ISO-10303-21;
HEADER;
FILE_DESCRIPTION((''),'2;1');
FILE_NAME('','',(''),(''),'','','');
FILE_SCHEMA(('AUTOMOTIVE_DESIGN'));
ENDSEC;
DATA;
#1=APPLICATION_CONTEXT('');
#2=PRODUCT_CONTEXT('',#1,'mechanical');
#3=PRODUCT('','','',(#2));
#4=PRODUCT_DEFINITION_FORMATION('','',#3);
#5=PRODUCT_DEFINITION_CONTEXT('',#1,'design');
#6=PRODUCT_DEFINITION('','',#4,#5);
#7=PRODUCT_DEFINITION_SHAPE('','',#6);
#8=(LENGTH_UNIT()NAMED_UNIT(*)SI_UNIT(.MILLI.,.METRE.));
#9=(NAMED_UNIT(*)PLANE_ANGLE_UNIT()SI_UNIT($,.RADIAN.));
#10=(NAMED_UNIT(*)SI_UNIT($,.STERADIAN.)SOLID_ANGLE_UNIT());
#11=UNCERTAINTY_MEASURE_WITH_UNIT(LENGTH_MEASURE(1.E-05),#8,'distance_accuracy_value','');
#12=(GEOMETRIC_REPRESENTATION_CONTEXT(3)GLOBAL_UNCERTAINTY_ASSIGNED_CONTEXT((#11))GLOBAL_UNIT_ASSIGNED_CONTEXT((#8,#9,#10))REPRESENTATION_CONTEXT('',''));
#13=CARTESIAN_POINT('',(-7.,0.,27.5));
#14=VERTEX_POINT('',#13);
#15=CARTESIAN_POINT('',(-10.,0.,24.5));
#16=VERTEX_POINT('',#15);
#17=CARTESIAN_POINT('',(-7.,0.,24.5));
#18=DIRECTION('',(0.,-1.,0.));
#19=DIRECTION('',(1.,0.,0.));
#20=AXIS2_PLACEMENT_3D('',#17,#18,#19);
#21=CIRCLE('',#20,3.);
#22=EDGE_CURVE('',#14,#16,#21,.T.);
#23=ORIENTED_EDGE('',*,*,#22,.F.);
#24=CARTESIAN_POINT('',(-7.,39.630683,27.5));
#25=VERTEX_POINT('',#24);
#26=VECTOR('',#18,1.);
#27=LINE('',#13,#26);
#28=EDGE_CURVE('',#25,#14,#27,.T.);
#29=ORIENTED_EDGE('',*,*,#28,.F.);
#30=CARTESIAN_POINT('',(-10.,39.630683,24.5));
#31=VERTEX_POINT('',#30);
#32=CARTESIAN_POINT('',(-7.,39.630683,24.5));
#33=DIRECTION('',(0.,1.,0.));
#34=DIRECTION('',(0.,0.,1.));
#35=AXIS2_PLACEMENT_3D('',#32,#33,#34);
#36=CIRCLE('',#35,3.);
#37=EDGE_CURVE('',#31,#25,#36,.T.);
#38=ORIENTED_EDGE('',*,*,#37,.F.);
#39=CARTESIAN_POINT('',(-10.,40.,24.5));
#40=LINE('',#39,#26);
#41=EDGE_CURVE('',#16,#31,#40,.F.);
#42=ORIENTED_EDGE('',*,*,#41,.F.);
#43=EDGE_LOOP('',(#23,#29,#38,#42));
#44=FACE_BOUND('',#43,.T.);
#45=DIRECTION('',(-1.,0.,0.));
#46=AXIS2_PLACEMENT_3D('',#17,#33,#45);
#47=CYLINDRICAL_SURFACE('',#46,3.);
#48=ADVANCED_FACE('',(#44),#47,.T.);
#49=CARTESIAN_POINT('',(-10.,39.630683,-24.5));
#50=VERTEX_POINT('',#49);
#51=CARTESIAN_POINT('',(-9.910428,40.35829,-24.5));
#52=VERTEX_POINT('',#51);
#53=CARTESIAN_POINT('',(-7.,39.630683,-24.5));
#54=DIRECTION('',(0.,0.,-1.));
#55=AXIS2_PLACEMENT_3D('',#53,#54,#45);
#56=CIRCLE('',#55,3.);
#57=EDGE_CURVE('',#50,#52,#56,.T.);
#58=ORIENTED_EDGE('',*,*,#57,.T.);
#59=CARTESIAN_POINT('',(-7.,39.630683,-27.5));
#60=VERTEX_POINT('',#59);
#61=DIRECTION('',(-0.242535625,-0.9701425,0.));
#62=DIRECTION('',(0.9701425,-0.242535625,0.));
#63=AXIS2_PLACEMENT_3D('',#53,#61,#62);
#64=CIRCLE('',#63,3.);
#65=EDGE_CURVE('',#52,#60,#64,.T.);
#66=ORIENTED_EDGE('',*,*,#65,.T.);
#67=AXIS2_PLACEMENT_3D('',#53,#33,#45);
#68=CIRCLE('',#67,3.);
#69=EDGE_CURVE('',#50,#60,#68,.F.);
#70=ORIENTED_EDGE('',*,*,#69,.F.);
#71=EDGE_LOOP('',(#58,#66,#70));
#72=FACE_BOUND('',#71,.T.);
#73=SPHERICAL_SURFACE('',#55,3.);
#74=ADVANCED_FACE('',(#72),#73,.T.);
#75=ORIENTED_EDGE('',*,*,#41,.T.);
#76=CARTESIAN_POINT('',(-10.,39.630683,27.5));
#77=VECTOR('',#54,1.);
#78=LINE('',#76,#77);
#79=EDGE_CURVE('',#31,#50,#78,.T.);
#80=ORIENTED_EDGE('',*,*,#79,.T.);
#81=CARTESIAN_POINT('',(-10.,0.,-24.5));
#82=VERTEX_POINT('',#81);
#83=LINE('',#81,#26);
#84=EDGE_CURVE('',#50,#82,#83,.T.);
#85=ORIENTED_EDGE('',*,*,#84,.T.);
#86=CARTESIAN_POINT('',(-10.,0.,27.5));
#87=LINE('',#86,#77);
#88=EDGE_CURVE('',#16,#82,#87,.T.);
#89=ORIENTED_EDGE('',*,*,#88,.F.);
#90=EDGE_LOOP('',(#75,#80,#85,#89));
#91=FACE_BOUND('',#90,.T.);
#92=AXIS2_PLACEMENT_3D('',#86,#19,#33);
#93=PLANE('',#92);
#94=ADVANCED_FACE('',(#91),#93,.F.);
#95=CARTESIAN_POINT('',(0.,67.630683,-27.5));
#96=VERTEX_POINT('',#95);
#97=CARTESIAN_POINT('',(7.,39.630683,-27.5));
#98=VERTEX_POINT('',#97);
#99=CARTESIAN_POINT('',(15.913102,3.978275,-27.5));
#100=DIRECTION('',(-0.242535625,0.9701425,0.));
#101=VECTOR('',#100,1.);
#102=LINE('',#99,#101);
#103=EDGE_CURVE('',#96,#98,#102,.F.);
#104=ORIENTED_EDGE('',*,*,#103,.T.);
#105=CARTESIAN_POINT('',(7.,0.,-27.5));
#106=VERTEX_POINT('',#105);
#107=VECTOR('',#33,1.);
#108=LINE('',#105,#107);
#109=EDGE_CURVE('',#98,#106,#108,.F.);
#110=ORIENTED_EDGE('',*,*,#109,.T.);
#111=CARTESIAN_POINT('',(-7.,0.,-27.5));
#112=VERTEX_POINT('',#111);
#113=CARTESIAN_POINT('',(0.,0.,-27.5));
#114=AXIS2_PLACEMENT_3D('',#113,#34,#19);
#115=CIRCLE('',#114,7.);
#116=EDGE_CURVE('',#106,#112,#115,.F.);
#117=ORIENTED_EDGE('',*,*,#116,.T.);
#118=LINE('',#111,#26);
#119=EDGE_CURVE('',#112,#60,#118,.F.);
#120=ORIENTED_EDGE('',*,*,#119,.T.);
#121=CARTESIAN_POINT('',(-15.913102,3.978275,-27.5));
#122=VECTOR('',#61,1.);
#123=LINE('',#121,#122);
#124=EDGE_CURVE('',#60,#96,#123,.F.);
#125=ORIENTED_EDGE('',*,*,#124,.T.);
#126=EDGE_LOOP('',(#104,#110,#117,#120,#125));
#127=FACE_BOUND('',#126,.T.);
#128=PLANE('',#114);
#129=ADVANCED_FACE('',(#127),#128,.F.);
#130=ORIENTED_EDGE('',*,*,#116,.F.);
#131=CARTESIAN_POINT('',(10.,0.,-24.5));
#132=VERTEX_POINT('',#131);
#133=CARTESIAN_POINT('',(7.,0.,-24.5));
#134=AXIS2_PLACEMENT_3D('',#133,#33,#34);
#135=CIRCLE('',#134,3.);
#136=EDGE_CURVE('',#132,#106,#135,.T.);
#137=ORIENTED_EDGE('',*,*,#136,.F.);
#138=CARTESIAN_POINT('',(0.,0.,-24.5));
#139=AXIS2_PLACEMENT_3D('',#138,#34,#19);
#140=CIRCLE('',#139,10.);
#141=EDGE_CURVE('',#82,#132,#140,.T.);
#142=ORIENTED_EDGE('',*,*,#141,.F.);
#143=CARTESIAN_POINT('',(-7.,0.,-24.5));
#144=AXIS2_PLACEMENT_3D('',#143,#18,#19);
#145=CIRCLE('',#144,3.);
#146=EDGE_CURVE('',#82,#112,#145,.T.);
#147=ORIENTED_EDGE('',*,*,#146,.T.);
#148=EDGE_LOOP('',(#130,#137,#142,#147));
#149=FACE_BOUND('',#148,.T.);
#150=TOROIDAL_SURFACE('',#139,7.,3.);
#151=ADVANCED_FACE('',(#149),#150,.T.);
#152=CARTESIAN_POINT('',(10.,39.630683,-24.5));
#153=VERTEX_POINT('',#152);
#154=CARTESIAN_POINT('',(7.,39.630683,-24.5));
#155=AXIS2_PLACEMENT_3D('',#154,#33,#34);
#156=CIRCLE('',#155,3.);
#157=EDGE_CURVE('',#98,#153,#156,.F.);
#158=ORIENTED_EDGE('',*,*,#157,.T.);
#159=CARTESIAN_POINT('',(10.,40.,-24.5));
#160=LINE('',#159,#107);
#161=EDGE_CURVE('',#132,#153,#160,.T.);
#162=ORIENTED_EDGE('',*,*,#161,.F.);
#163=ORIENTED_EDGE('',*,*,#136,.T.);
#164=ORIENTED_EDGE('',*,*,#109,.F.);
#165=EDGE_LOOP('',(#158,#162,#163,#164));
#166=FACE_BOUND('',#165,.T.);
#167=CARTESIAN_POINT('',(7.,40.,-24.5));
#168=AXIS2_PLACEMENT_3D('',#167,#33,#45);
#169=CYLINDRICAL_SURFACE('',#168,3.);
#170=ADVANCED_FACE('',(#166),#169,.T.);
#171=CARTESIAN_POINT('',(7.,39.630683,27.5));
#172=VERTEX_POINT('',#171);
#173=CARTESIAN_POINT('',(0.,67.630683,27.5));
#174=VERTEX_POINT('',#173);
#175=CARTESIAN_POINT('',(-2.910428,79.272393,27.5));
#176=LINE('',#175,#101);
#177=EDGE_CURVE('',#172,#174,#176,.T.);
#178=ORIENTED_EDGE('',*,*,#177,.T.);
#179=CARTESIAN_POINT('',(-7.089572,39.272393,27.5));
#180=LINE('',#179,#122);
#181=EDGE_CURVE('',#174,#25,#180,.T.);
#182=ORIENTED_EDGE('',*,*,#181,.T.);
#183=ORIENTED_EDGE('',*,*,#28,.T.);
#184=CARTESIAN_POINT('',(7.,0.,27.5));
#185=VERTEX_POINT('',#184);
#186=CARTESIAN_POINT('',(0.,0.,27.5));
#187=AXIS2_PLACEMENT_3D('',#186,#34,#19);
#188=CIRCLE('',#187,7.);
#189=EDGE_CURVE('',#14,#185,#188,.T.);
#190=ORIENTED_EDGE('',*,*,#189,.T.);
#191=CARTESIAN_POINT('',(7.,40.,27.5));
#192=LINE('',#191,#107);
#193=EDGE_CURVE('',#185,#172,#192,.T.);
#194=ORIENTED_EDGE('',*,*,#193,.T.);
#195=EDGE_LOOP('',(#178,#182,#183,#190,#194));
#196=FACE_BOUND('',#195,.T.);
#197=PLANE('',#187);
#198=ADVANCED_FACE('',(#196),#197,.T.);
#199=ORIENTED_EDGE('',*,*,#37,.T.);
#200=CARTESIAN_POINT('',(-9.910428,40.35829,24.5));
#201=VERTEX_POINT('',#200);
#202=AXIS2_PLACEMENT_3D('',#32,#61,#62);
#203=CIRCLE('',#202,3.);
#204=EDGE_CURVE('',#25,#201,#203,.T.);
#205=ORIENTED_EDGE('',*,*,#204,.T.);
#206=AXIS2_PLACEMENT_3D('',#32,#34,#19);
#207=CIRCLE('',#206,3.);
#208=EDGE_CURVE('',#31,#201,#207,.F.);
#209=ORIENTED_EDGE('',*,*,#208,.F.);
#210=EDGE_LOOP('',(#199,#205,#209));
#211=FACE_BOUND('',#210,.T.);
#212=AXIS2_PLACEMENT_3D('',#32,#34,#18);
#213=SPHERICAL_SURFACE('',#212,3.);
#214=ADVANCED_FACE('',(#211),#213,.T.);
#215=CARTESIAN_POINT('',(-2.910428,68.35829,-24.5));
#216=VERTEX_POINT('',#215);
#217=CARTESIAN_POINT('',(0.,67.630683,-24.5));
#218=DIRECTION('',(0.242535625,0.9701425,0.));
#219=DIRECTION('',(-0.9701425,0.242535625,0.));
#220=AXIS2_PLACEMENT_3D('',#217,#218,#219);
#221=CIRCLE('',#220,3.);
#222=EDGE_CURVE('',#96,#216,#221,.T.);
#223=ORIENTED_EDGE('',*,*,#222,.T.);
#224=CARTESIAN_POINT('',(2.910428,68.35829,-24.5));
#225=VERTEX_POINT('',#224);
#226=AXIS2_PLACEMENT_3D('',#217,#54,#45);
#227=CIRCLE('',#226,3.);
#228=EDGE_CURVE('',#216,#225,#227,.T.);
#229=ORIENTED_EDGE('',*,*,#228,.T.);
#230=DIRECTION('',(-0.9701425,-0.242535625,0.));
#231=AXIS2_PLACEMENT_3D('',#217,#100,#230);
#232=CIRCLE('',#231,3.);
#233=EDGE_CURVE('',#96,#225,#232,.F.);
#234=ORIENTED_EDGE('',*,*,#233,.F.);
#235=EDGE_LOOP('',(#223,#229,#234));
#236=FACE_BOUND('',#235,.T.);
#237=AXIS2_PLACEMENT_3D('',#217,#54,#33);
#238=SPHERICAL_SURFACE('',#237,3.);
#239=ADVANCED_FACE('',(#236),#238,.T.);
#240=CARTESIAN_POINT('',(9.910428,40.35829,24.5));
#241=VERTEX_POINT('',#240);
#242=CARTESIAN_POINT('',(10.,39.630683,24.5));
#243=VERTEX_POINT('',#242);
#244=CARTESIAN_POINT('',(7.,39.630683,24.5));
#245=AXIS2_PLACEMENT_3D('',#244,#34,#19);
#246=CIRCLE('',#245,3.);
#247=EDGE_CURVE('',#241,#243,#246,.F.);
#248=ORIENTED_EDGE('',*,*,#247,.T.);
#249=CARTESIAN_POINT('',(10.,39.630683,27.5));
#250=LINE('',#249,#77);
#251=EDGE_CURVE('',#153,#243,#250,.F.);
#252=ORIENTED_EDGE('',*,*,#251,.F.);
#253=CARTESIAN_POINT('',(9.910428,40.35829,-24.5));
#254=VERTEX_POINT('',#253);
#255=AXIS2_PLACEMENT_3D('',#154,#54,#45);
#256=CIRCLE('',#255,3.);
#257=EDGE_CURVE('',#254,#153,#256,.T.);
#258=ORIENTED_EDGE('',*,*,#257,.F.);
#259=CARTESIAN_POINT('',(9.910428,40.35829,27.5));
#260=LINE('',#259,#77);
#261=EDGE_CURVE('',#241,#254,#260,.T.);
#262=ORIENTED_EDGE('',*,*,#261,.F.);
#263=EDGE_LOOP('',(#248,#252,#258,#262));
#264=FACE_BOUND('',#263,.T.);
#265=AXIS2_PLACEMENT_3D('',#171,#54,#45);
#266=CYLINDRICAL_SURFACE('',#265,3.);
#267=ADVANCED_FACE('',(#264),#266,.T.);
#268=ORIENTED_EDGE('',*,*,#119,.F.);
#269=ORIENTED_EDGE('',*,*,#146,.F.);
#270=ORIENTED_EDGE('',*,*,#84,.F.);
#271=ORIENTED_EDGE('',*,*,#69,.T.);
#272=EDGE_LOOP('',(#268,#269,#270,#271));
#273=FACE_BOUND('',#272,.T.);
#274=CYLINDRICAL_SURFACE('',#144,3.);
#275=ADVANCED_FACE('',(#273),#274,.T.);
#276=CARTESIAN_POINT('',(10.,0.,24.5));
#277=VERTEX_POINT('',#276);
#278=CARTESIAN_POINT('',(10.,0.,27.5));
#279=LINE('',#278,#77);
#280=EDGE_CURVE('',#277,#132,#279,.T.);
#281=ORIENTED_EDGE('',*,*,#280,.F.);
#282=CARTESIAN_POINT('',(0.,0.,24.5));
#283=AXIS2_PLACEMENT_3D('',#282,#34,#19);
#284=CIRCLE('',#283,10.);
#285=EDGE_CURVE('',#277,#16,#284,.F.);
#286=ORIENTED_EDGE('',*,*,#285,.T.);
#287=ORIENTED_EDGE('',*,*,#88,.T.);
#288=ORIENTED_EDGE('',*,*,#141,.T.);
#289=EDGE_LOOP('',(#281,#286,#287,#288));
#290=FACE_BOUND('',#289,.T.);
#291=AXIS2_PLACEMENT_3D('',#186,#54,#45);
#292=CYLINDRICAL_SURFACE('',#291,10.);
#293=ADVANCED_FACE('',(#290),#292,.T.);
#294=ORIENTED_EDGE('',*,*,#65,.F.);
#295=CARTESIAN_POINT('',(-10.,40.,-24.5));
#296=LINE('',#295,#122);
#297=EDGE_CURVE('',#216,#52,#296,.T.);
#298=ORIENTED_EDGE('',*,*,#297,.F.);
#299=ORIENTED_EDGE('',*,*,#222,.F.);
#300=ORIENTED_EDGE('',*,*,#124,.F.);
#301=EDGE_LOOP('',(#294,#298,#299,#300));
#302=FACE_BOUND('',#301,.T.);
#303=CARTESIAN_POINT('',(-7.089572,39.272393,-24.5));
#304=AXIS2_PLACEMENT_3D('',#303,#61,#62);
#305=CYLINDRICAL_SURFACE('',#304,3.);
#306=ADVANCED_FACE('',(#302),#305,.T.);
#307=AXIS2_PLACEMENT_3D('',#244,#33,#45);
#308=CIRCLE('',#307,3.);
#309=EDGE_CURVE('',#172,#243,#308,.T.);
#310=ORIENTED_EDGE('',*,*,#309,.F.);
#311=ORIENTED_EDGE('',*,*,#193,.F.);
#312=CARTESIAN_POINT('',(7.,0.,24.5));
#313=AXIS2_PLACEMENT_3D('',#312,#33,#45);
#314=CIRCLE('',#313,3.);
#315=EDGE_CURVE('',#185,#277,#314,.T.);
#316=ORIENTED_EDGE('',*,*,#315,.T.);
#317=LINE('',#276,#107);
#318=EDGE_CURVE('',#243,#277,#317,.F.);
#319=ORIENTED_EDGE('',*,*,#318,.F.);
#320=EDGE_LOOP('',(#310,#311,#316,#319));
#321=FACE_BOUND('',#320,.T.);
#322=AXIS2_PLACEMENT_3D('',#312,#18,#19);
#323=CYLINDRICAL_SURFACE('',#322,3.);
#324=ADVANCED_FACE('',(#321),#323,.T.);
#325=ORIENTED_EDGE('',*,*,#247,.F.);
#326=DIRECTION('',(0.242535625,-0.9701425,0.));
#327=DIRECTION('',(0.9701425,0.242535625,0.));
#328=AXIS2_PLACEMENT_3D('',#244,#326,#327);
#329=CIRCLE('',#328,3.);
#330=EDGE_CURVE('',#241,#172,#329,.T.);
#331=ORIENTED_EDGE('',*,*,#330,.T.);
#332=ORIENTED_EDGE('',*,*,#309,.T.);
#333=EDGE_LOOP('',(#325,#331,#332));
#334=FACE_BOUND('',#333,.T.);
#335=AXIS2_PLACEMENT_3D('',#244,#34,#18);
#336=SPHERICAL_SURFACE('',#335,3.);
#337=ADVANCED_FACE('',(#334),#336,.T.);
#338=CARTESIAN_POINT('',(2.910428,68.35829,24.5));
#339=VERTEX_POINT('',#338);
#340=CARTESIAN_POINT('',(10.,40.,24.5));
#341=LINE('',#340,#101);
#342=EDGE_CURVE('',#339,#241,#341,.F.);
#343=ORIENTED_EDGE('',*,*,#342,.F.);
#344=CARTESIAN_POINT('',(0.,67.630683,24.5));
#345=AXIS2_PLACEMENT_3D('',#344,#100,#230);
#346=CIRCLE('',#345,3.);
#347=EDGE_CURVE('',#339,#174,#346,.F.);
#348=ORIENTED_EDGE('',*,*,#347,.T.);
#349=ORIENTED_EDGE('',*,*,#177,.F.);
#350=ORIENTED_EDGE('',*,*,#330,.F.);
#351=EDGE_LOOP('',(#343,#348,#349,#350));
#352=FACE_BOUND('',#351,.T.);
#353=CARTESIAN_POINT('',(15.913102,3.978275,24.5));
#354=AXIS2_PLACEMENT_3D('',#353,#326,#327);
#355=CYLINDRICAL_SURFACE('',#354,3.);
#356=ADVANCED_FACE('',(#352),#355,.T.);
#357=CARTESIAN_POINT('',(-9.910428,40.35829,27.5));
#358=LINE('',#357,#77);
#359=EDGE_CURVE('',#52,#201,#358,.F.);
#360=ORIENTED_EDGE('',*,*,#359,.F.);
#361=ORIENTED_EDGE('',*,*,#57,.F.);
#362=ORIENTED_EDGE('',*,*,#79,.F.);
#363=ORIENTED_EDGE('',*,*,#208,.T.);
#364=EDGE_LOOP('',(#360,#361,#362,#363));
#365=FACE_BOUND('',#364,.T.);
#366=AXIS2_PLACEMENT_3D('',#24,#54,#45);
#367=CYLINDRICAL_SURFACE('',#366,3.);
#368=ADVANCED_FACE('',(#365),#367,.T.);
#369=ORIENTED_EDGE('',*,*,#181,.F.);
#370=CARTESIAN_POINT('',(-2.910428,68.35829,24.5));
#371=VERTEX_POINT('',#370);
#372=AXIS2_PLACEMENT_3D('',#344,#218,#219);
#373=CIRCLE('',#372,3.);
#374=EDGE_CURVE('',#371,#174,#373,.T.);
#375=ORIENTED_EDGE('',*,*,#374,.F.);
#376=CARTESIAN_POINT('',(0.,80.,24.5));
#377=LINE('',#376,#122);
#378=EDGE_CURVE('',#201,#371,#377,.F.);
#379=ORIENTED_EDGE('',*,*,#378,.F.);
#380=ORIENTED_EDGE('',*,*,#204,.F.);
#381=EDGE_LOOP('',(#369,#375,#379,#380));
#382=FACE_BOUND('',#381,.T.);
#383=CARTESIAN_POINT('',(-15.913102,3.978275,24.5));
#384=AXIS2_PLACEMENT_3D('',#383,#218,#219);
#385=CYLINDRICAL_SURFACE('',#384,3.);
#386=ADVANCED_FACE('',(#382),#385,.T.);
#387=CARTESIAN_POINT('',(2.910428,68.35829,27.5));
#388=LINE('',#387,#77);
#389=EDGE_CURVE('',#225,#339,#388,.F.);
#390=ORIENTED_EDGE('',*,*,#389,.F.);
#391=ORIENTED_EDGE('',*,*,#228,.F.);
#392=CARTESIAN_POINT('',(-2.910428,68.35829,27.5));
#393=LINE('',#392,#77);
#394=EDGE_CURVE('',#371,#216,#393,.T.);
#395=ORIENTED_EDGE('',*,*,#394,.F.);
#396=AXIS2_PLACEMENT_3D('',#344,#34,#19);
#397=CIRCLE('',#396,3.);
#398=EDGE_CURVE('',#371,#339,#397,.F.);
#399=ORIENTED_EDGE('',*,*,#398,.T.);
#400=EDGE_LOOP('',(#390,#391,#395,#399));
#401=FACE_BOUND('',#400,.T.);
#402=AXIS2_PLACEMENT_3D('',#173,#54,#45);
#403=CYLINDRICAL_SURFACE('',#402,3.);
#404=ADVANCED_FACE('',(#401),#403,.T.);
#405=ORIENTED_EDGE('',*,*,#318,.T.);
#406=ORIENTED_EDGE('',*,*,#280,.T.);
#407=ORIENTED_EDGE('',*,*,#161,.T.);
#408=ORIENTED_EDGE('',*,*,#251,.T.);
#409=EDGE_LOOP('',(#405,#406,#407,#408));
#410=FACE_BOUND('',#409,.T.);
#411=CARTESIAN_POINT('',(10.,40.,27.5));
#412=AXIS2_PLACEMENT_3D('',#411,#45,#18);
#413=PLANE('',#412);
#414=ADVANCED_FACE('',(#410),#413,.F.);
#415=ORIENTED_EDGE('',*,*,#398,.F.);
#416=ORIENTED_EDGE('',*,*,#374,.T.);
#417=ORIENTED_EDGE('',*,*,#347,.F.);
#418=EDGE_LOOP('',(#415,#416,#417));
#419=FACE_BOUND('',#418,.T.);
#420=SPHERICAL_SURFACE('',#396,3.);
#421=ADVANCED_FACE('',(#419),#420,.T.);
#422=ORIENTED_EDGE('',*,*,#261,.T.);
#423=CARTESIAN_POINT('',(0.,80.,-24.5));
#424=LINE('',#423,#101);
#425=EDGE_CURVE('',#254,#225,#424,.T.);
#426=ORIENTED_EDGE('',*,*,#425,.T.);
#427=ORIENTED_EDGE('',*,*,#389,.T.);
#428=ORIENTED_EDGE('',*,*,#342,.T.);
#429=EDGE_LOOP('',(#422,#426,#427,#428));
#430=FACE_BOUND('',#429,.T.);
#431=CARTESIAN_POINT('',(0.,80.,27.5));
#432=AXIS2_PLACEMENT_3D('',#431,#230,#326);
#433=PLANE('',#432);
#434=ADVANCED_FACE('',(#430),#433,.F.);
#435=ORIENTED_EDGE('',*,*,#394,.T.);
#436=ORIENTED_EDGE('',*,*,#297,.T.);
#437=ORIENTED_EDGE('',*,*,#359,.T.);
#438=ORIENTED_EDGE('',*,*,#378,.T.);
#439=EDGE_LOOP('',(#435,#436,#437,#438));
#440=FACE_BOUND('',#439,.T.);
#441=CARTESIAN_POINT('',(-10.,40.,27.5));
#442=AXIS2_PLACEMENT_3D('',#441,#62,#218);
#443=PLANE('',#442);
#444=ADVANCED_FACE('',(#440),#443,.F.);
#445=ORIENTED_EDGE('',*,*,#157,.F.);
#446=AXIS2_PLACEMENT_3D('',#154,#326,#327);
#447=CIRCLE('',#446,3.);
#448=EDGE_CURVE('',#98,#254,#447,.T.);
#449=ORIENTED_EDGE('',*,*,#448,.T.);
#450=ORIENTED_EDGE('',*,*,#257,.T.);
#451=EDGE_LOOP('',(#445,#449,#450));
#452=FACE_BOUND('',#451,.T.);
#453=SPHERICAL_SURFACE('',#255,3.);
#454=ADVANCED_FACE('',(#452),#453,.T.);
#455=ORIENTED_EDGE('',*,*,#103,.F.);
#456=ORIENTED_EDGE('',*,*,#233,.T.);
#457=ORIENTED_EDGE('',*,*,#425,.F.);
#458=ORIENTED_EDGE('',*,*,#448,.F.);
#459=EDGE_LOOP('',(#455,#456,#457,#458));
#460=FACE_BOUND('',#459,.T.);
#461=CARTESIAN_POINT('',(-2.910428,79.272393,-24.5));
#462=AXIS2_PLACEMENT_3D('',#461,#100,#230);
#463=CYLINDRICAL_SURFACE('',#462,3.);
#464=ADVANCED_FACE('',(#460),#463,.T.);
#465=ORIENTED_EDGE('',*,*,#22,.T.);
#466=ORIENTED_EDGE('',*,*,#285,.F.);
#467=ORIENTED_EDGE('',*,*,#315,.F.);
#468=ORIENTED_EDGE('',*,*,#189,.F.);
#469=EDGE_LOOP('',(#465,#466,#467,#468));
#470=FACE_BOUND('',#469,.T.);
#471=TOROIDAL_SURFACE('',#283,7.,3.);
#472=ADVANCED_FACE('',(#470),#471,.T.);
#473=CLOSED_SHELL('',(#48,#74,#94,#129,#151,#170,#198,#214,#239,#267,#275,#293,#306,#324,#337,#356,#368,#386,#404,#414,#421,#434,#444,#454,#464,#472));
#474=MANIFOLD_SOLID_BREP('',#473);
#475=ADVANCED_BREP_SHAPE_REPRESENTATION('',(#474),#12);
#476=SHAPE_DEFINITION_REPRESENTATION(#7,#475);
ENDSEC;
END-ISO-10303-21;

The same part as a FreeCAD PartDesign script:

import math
import FreeCAD as App
import Part
import Sketcher
from FreeCAD import Vector
Q = App.Units.Quantity

doc = App.newDocument("Part")
params = doc.addObject("Spreadsheet::Sheet", "Params")
for row, (alias, value) in enumerate([
    ("sketch1_radius", "10 mm"),
    ("sketch1_height", "40 mm"),
    ("pad1_length", "55 mm"),
    ("fillet_radius", "3 mm"),
], start=1):
    params.set(f"A{row}", alias)
    params.set(f"B{row}", "=" + value)
    params.setAlias(f"B{row}", alias)

body = doc.addObject("PartDesign::Body", "Body")

sketch1 = body.newObject("Sketcher::SketchObject", "Sketch")
sketch1.AttachmentSupport = (doc.getObject("XY_Plane"), [""])
sketch1.MapMode = "FlatFace"
sketch1.addGeometry(Part.LineSegment(Vector(-10, 40, 0), Vector(-10, 0, 0)), False)
sketch1.addGeometry(Part.ArcOfCircle(Part.Circle(Vector(0, 0, 0), Vector(0, 0, 1), 10), math.radians(180), math.radians(360)), False)
sketch1.addGeometry(Part.LineSegment(Vector(10, 0, 0), Vector(10, 40, 0)), False)
sketch1.addGeometry(Part.LineSegment(Vector(10, 40, 0), Vector(0, 80, 0)), False)
sketch1.addGeometry(Part.LineSegment(Vector(0, 80, 0), Vector(-10, 40, 0)), False)
sketch1.addConstraint(Sketcher.Constraint("Tangent", 0, 2, 1, 1))
sketch1.addConstraint(Sketcher.Constraint("Tangent", 1, 2, 2, 1))
sketch1.addConstraint(Sketcher.Constraint("Coincident", 2, 2, 3, 1))
sketch1.addConstraint(Sketcher.Constraint("Coincident", 3, 2, 4, 1))
sketch1.addConstraint(Sketcher.Constraint("Coincident", 4, 2, 0, 1))
sketch1.addConstraint(Sketcher.Constraint("Vertical", 0))
sketch1.addConstraint(Sketcher.Constraint("Vertical", 2))
sketch1.addConstraint(Sketcher.Constraint("Coincident", 1, 3, -1, 1))
sketch1.addConstraint(Sketcher.Constraint("PointOnObject", 3, 2, -2))
sketch1.addConstraint(Sketcher.Constraint("Horizontal", 2, 2, 4, 2))
sketch1.addConstraint(Sketcher.Constraint("Radius", 1, Q("10 mm")))
sketch1.addConstraint(Sketcher.Constraint("DistanceY", 0, 2, 0, 1, Q("40 mm")))
sketch1.addConstraint(Sketcher.Constraint("DistanceY", -1, 1, 3, 2, Q("80 mm")))
sketch1.setExpression("Constraints[10]", "Params.sketch1_radius")
sketch1.setExpression("Constraints[11]", "Params.sketch1_height")
pad1 = body.newObject("PartDesign::Pad", "Pad")
pad1.Profile = sketch1
pad1.setExpression("Length", "Params.pad1_length")
pad1.Midplane = True
doc.recompute()

fillet = body.newObject("PartDesign::Fillet", "Fillet")
fillet.Base = (pad1, ["Edge1"])
fillet.UseAllEdges = True
fillet.setExpression("Radius", "Params.fillet_radius")

doc.recompute()
